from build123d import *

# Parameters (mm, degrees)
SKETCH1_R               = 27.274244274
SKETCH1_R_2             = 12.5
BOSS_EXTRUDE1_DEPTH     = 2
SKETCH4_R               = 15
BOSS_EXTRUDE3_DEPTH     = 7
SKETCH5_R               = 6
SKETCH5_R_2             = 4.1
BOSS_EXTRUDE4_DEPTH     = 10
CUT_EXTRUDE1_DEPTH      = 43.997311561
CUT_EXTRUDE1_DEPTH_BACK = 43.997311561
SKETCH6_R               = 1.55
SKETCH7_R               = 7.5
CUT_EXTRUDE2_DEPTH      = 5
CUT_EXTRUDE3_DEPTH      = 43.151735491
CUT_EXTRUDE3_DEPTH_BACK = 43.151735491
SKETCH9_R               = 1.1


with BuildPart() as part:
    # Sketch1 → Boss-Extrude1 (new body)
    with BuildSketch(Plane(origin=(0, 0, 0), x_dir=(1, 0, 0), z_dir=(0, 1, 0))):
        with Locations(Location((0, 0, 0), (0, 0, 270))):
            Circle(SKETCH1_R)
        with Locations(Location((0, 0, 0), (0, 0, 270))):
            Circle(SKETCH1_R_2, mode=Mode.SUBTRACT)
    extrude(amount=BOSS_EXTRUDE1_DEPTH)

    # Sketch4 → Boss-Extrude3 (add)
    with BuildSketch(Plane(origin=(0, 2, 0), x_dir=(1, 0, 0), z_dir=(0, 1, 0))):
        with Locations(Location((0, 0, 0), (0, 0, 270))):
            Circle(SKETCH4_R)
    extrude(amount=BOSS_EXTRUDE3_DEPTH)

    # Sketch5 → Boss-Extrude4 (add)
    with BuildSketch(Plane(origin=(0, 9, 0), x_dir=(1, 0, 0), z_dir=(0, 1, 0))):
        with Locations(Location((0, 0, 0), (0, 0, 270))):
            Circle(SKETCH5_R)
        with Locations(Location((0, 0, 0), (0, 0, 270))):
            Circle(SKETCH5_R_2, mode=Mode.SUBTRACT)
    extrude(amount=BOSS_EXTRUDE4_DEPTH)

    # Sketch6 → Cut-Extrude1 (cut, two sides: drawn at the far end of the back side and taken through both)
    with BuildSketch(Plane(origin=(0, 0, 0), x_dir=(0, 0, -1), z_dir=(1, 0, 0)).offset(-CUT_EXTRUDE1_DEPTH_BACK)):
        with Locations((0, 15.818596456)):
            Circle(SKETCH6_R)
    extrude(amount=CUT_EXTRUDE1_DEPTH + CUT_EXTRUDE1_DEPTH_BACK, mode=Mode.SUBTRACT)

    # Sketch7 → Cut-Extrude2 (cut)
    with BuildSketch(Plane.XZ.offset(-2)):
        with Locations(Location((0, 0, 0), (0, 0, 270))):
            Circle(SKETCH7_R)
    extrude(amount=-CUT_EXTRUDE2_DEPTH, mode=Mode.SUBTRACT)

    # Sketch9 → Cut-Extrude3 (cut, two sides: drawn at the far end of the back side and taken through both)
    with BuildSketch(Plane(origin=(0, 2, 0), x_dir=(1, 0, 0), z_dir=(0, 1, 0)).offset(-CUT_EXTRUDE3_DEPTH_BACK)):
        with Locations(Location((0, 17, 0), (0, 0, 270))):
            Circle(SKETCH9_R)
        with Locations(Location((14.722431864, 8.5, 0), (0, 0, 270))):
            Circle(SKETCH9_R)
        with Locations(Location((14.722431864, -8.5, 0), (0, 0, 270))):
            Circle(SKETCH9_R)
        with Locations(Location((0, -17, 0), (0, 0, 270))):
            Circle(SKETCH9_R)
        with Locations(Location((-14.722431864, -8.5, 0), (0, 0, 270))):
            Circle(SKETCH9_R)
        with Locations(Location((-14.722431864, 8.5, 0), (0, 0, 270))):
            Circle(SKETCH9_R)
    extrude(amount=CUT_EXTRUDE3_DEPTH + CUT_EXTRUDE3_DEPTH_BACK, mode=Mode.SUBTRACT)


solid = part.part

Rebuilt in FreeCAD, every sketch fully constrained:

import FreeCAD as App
import Part
import Sketcher

V = App.Vector
Q = App.Units.Quantity

doc = App.newDocument("Part")
body = doc.addObject("PartDesign::Body", "Body")

# Sketch on XZ plane
sketch1 = body.newObject("Sketcher::SketchObject", "Sketch")
sketch1.AttachmentSupport = (doc.getObject("XZ_Plane"), [""])
sketch1.MapMode = "FlatFace"
sketch1.addGeometry(Part.Circle(V(0, 0, 0), V(0, 0, 1), 27), False)
sketch1.addGeometry(Part.Circle(V(0, 0, 0), V(0, 0, 1), 12), False)
sketch1.addConstraint(Sketcher.Constraint("Coincident", 0, 3, -1, 1))
sketch1.addConstraint(Sketcher.Constraint("Coincident", 1, 3, -1, 1))
sketch1.addConstraint(Sketcher.Constraint("Diameter", 1, Q("25 mm")))
sketch1.addConstraint(Sketcher.Constraint("Diameter", 0, Q("54.548489 mm")))
pad1 = body.newObject("PartDesign::Pad", "Pad")
pad1.Profile = sketch1
pad1.Length = 2
pad1.Reversed = True

# Sketch on XZ plane
sketch2 = body.newObject("Sketcher::SketchObject", "Sketch001")
sketch2.AttachmentSupport = (doc.getObject("XZ_Plane"), [""])
sketch2.MapMode = "FlatFace"
sketch2.AttachmentOffset = App.Placement(V(0, 0, -2), App.Rotation())
sketch2.addGeometry(Part.Circle(V(0, 0, 0), V(0, 0, 1), 15), False)
sketch2.addConstraint(Sketcher.Constraint("Coincident", 0, 3, -1, 1))
sketch2.addConstraint(Sketcher.Constraint("Diameter", 0, Q("30 mm")))
pad2 = body.newObject("PartDesign::Pad", "Pad001")
pad2.Profile = sketch2
pad2.Length = 7
pad2.Reversed = True

# Sketch on XZ plane
sketch3 = body.newObject("Sketcher::SketchObject", "Sketch002")
sketch3.AttachmentSupport = (doc.getObject("XZ_Plane"), [""])
sketch3.MapMode = "FlatFace"
sketch3.AttachmentOffset = App.Placement(V(0, 0, -9), App.Rotation())
sketch3.addGeometry(Part.Circle(V(0, 0, 0), V(0, 0, 1), 6), False)
sketch3.addGeometry(Part.Circle(V(0, 0, 0), V(0, 0, 1), 4.1), False)
sketch3.addConstraint(Sketcher.Constraint("Coincident", 0, 3, -1, 1))
sketch3.addConstraint(Sketcher.Constraint("Coincident", 1, 3, -1, 1))
sketch3.addConstraint(Sketcher.Constraint("Diameter", 0, Q("12 mm")))
sketch3.addConstraint(Sketcher.Constraint("Diameter", 1, Q("8.2 mm")))
pad3 = body.newObject("PartDesign::Pad", "Pad002")
pad3.Profile = sketch3
pad3.Length = 10
pad3.Reversed = True

# Sketch on YZ plane
sketch4 = body.newObject("Sketcher::SketchObject", "Sketch003")
sketch4.AttachmentSupport = (doc.getObject("YZ_Plane"), [""])
sketch4.MapMode = "FlatFace"
sketch4.addGeometry(Part.Circle(V(15.8, 0, 0), V(0, 0, 1), 1.6), False)
sketch4.addConstraint(Sketcher.Constraint("PointOnObject", 0, 3, -1))
sketch4.addConstraint(Sketcher.Constraint("Diameter", 0, Q("3.1 mm")))
sketch4.addConstraint(Sketcher.Constraint("DistanceX", -1, 1, 0, 3, Q("15.818596 mm")))
pocket1 = body.newObject("PartDesign::Pocket", "Pocket")
pocket1.Profile = sketch4
pocket1.Type = "ThroughAll"
pocket1.Midplane = True

# Sketch on XZ plane
sketch5 = body.newObject("Sketcher::SketchObject", "Sketch004")
sketch5.AttachmentSupport = (doc.getObject("XZ_Plane"), [""])
sketch5.MapMode = "FlatFace"
sketch5.AttachmentOffset = App.Placement(V(0, 0, -2), App.Rotation())
sketch5.addGeometry(Part.Circle(V(0, 0, 0), V(0, 0, 1), 8), False)
sketch5.addConstraint(Sketcher.Constraint("Coincident", 0, 3, -1, 1))
sketch5.addConstraint(Sketcher.Constraint("Diameter", 0, Q("15 mm")))
pocket2 = body.newObject("PartDesign::Pocket", "Pocket001")
pocket2.Profile = sketch5
pocket2.Length = 5

# Sketch on XZ plane
sketch6 = body.newObject("Sketcher::SketchObject", "Sketch005")
sketch6.AttachmentSupport = (doc.getObject("XZ_Plane"), [""])
sketch6.MapMode = "FlatFace"
sketch6.AttachmentOffset = App.Placement(V(0, 0, -2), App.Rotation())
sketch6.addGeometry(Part.Circle(V(0, -17, 0), V(0, 0, 1), 1.1), False)
sketch6.addGeometry(Part.Circle(V(14.7, -8.5, 0), V(0, 0, 1), 1.1), False)
sketch6.addGeometry(Part.Circle(V(14.7, 8.5, 0), V(0, 0, 1), 1.1), False)
sketch6.addGeometry(Part.Circle(V(0, 17, 0), V(0, 0, 1), 1.1), False)
sketch6.addGeometry(Part.Circle(V(-14.7, 8.5, 0), V(0, 0, 1), 1.1), False)
sketch6.addGeometry(Part.Circle(V(-14.7, -8.5, 0), V(0, 0, 1), 1.1), False)
sketch6.addConstraint(Sketcher.Constraint("Equal", 0, 1))
sketch6.addConstraint(Sketcher.Constraint("Equal", 1, 2))
sketch6.addConstraint(Sketcher.Constraint("Equal", 2, 3))
sketch6.addConstraint(Sketcher.Constraint("Equal", 3, 4))
sketch6.addConstraint(Sketcher.Constraint("Equal", 4, 5))
sketch6.addConstraint(Sketcher.Constraint("Symmetric", 0, 3, 3, 3, -1, 1))
sketch6.addConstraint(Sketcher.Constraint("Symmetric", 1, 3, 4, 3, -1, 1))
sketch6.addConstraint(Sketcher.Constraint("Symmetric", 2, 3, 5, 3, -1, 1))
sketch6.addConstraint(Sketcher.Constraint("Symmetric", 2, 3, 4, 3, -2))
sketch6.addConstraint(Sketcher.Constraint("PointOnObject", 0, 3, -2))
sketch6.addConstraint(Sketcher.Constraint("Diameter", 0, Q("2.2 mm")))
sketch6.addConstraint(Sketcher.Constraint("DistanceY", 0, 3, -1, 1, Q("17 mm")))
sketch6.addConstraint(Sketcher.Constraint("DistanceY", 1, 3, 2, 3, Q("17 mm")))
sketch6.addConstraint(Sketcher.Constraint("DistanceX", -1, 1, 1, 3, Q("14.722432 mm")))
pocket3 = body.newObject("PartDesign::Pocket", "Pocket002")
pocket3.Profile = sketch6
pocket3.Type = "ThroughAll"
pocket3.Midplane = True

doc.recompute()
